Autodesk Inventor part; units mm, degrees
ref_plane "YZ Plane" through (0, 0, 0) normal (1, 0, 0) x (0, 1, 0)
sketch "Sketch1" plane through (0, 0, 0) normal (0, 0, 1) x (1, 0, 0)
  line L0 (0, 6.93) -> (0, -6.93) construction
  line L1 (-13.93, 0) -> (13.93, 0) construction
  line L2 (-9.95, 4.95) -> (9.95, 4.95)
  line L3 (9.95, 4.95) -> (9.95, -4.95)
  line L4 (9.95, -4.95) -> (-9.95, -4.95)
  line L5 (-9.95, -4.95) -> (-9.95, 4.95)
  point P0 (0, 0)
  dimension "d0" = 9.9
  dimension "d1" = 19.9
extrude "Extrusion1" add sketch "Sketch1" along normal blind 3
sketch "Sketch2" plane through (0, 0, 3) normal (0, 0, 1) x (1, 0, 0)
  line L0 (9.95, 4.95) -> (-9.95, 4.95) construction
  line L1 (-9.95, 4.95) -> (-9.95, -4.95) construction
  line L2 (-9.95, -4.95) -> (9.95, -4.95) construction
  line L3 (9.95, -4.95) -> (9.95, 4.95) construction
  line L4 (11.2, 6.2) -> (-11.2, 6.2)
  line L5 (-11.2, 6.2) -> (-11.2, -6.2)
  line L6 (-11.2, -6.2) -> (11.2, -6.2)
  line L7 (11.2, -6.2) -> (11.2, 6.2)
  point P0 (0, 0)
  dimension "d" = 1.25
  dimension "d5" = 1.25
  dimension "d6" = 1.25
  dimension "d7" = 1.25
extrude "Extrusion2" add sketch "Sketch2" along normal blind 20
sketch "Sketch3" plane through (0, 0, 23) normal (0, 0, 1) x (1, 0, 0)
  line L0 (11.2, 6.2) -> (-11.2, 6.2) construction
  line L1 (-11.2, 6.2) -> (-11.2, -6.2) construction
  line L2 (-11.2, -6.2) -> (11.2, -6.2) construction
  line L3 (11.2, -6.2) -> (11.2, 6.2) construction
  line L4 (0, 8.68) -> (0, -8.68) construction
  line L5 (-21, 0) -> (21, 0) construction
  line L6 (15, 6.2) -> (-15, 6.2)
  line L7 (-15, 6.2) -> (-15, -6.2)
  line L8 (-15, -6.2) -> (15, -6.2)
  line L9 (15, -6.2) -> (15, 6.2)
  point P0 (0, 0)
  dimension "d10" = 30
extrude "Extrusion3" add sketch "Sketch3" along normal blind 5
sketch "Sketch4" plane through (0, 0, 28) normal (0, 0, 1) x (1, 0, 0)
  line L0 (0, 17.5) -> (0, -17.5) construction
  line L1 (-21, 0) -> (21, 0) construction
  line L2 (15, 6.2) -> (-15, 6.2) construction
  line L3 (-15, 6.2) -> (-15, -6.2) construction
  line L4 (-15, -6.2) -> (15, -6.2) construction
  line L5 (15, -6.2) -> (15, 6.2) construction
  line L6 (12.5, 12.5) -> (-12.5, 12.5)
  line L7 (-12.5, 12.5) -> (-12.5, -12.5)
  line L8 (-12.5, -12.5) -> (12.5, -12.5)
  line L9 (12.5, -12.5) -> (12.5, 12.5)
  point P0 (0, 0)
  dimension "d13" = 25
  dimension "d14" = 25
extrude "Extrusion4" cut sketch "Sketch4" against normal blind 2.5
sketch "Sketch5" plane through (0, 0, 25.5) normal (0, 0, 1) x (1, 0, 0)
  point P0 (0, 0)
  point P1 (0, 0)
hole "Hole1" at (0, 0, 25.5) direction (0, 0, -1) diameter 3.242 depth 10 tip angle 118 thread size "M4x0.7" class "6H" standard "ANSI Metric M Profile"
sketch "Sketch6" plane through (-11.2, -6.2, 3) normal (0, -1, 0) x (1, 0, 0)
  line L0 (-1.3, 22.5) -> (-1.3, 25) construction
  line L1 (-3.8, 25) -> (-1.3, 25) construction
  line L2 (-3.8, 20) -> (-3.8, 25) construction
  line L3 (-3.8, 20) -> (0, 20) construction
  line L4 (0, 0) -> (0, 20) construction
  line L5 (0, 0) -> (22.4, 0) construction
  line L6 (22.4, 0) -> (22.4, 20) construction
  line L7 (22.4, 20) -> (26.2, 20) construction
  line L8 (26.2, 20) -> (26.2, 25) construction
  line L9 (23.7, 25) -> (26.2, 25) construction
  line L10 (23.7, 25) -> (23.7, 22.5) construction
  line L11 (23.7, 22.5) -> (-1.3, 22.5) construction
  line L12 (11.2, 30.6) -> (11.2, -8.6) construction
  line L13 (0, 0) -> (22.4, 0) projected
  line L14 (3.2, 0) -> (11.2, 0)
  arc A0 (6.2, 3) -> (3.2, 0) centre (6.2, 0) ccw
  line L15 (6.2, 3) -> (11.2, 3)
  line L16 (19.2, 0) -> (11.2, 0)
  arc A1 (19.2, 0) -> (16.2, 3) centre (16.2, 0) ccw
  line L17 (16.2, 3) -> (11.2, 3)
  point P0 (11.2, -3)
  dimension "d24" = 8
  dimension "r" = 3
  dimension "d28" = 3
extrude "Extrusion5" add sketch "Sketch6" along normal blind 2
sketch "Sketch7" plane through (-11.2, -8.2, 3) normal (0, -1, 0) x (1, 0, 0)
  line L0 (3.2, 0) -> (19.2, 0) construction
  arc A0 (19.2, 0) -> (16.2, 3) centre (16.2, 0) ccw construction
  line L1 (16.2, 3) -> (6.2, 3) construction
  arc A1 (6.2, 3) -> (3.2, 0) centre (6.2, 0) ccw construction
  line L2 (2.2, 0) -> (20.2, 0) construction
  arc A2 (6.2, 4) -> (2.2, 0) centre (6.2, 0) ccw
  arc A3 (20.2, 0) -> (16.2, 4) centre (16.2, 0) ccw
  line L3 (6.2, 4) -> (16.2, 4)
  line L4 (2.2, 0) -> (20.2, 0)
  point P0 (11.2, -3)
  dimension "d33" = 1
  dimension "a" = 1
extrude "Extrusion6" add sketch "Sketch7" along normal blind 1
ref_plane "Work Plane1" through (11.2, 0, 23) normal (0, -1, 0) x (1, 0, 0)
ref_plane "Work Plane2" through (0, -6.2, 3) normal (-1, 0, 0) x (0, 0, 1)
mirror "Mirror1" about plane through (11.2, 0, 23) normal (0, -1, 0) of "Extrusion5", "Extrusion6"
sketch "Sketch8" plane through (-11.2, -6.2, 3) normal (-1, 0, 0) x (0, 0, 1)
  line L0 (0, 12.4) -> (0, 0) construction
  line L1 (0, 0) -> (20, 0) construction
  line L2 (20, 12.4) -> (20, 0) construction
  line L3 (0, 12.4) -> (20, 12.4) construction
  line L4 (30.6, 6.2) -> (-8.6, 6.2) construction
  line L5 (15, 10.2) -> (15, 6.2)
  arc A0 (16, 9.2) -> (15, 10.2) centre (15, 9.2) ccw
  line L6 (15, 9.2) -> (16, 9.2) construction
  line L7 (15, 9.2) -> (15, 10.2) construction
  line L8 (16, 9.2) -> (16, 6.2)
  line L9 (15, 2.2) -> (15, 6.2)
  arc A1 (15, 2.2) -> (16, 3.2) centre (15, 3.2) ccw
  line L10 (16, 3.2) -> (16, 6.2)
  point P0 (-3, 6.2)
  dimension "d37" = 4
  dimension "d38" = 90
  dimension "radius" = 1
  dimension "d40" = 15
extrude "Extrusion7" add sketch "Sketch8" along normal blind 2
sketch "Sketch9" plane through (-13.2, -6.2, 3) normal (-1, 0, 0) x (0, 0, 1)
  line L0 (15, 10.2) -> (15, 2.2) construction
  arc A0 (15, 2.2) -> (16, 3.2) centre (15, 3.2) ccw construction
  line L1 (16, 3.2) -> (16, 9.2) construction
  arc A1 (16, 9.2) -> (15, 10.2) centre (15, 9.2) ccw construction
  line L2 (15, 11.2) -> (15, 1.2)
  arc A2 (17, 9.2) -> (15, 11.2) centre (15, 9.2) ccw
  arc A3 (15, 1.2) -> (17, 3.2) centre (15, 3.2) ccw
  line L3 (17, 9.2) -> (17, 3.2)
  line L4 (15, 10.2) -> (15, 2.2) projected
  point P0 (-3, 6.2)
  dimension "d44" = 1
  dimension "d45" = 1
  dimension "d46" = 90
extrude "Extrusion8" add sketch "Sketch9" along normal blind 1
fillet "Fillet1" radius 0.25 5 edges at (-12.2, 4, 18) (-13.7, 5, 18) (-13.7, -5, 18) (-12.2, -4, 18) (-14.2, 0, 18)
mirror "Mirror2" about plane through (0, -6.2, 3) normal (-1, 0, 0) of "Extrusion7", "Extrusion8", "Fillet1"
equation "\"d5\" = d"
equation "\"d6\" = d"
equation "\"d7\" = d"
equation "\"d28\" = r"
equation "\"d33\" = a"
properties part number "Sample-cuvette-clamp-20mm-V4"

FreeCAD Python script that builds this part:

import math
import FreeCAD as App
import Part
import Sketcher

V = App.Vector


def edges_at(feature, points):
    """Names of the edges that pass closest to the given points."""
    edges = feature.Shape.Edges
    near = lambda p: min(range(len(edges)), key=lambda i: edges[i].distToShape(Part.Vertex(*p))[0])
    return sorted({f"Edge{near(p) + 1}" for p in points})

doc = App.newDocument("Part")
body = doc.addObject("PartDesign::Body", "Body")

# Sketch on XY plane
sketch1 = body.newObject("Sketcher::SketchObject", "Sketch")
sketch1.AttachmentSupport = (doc.getObject("XY_Plane"), [""])
sketch1.MapMode = "FlatFace"
sketch1.addGeometry(Part.LineSegment(V(10, 5, 0), V(-10, 5, 0)), False)
sketch1.addGeometry(Part.LineSegment(V(-10, 5, 0), V(-10, -5, 0)), False)
sketch1.addGeometry(Part.LineSegment(V(-10, -5, 0), V(10, -5, 0)), False)
sketch1.addGeometry(Part.LineSegment(V(10, -5, 0), V(10, 5, 0)), False)
sketch1.addConstraint(Sketcher.Constraint("Coincident", 0, 2, 1, 1))
sketch1.addConstraint(Sketcher.Constraint("Coincident", 1, 2, 2, 1))
sketch1.addConstraint(Sketcher.Constraint("Coincident", 2, 2, 3, 1))
sketch1.addConstraint(Sketcher.Constraint("Coincident", 3, 2, 0, 1))
sketch1.addConstraint(Sketcher.Constraint("Horizontal", 0))
sketch1.addConstraint(Sketcher.Constraint("Vertical", 1))
sketch1.addConstraint(Sketcher.Constraint("Horizontal", 2))
sketch1.addConstraint(Sketcher.Constraint("Vertical", 3))
sketch1.addConstraint(Sketcher.Constraint("Symmetric", 0, 2, 2, 2, -1, 1))
sketch1.addConstraint(Sketcher.Constraint("DistanceX", 0, 2, 0, 1, 19.9))
sketch1.addConstraint(Sketcher.Constraint("DistanceY", 1, 2, 1, 1, 9.9))
pad1 = body.newObject("PartDesign::Pad", "Pad")
pad1.Profile = sketch1
pad1.Length = 3

# Sketch on XY plane
sketch2 = body.newObject("Sketcher::SketchObject", "Sketch001")
sketch2.AttachmentSupport = (doc.getObject("XY_Plane"), [""])
sketch2.MapMode = "FlatFace"
sketch2.AttachmentOffset = App.Placement(V(0, 0, 3), App.Rotation())
sketch2.addGeometry(Part.LineSegment(V(11, -6, 0), V(11, 6, 0)), False)
sketch2.addGeometry(Part.LineSegment(V(11, 6, 0), V(-11, 6, 0)), False)
sketch2.addGeometry(Part.LineSegment(V(-11, 6, 0), V(-11, -6, 0)), False)
sketch2.addGeometry(Part.LineSegment(V(-11, -6, 0), V(11, -6, 0)), False)
sketch2.addConstraint(Sketcher.Constraint("Coincident", 0, 2, 1, 1))
sketch2.addConstraint(Sketcher.Constraint("Coincident", 1, 2, 2, 1))
sketch2.addConstraint(Sketcher.Constraint("Coincident", 2, 2, 3, 1))
sketch2.addConstraint(Sketcher.Constraint("Coincident", 3, 2, 0, 1))
sketch2.addConstraint(Sketcher.Constraint("Vertical", 0))
sketch2.addConstraint(Sketcher.Constraint("Horizontal", 1))
sketch2.addConstraint(Sketcher.Constraint("Vertical", 2))
sketch2.addConstraint(Sketcher.Constraint("Horizontal", 3))
sketch2.addConstraint(Sketcher.Constraint("Symmetric", 0, 2, 2, 2, -1, 1))
sketch2.addConstraint(Sketcher.Constraint("DistanceX", 1, 2, 1, 1, 22.4))
sketch2.addConstraint(Sketcher.Constraint("DistanceY", 0, 1, 0, 2, 12.4))
pad2 = body.newObject("PartDesign::Pad", "Pad001")
pad2.Profile = sketch2
pad2.Length = 20

# Sketch on XY plane
sketch3 = body.newObject("Sketcher::SketchObject", "Sketch002")
sketch3.AttachmentSupport = (doc.getObject("XY_Plane"), [""])
sketch3.MapMode = "FlatFace"
sketch3.AttachmentOffset = App.Placement(V(0, 0, 23), App.Rotation())
sketch3.addGeometry(Part.LineSegment(V(15, -6, 0), V(15, 6, 0)), False)
sketch3.addGeometry(Part.LineSegment(V(15, 6, 0), V(-15, 6, 0)), False)
sketch3.addGeometry(Part.LineSegment(V(-15, 6, 0), V(-15, -6, 0)), False)
sketch3.addGeometry(Part.LineSegment(V(-15, -6, 0), V(15, -6, 0)), False)
sketch3.addConstraint(Sketcher.Constraint("Coincident", 0, 2, 1, 1))
sketch3.addConstraint(Sketcher.Constraint("Coincident", 1, 2, 2, 1))
sketch3.addConstraint(Sketcher.Constraint("Coincident", 2, 2, 3, 1))
sketch3.addConstraint(Sketcher.Constraint("Coincident", 3, 2, 0, 1))
sketch3.addConstraint(Sketcher.Constraint("Vertical", 0))
sketch3.addConstraint(Sketcher.Constraint("Horizontal", 1))
sketch3.addConstraint(Sketcher.Constraint("Vertical", 2))
sketch3.addConstraint(Sketcher.Constraint("Horizontal", 3))
sketch3.addConstraint(Sketcher.Constraint("Symmetric", 0, 2, 2, 2, -1, 1))
sketch3.addConstraint(Sketcher.Constraint("DistanceX", 1, 2, 1, 1, 30.0))
sketch3.addConstraint(Sketcher.Constraint("DistanceY", 0, 1, 0, 2, 12.4))
pad3 = body.newObject("PartDesign::Pad", "Pad002")
pad3.Profile = sketch3
pad3.Length = 5

# Sketch on XY plane
sketch4 = body.newObject("Sketcher::SketchObject", "Sketch003")
sketch4.AttachmentSupport = (doc.getObject("XY_Plane"), [""])
sketch4.MapMode = "FlatFace"
sketch4.AttachmentOffset = App.Placement(V(0, 0, 28), App.Rotation())
sketch4.addGeometry(Part.LineSegment(V(12, -12, 0), V(12, 12, 0)), False)
sketch4.addGeometry(Part.LineSegment(V(12, 12, 0), V(-12, 12, 0)), False)
sketch4.addGeometry(Part.LineSegment(V(-12, 12, 0), V(-12, -12, 0)), False)
sketch4.addGeometry(Part.LineSegment(V(-12, -12, 0), V(12, -12, 0)), False)
sketch4.addConstraint(Sketcher.Constraint("Coincident", 0, 2, 1, 1))
sketch4.addConstraint(Sketcher.Constraint("Coincident", 1, 2, 2, 1))
sketch4.addConstraint(Sketcher.Constraint("Coincident", 2, 2, 3, 1))
sketch4.addConstraint(Sketcher.Constraint("Coincident", 3, 2, 0, 1))
sketch4.addConstraint(Sketcher.Constraint("Vertical", 0))
sketch4.addConstraint(Sketcher.Constraint("Horizontal", 1))
sketch4.addConstraint(Sketcher.Constraint("Vertical", 2))
sketch4.addConstraint(Sketcher.Constraint("Horizontal", 3))
sketch4.addConstraint(Sketcher.Constraint("Symmetric", 0, 2, 2, 2, -1, 1))
sketch4.addConstraint(Sketcher.Constraint("Equal", 3, 0))
sketch4.addConstraint(Sketcher.Constraint("DistanceX", 1, 2, 1, 1, 25.0))
pocket1 = body.newObject("PartDesign::Pocket", "Pocket")
pocket1.Profile = sketch4
pocket1.Length = 2.5

# Sketch on XY plane
sketch5 = body.newObject("Sketcher::SketchObject", "Sketch004")
sketch5.AttachmentSupport = (doc.getObject("XY_Plane"), [""])
sketch5.MapMode = "FlatFace"
sketch5.AttachmentOffset = App.Placement(V(0, 0, 25.5), App.Rotation())
sketch5.addGeometry(Part.Circle(V(0, 0, 0), V(0, 0, 1), 1.6), False)
sketch5.addConstraint(Sketcher.Constraint("Coincident", 0, 3, -1, 1))
sketch5.addConstraint(Sketcher.Constraint("Diameter", 0, 3.242))
doc.recompute()
hole = body.newObject("PartDesign::Hole", "Hole")
hole.Profile = sketch5
hole.ThreadType = "None"
hole.Diameter = 3.242
hole.DepthType = "Dimension"
hole.Depth = 10
hole.DrillPoint = "Angled"
hole.DrillPointAngle = 118

# Sketch on XZ plane
sketch6 = body.newObject("Sketcher::SketchObject", "Sketch005")
sketch6.AttachmentSupport = (doc.getObject("XZ_Plane"), [""])
sketch6.MapMode = "FlatFace"
sketch6.AttachmentOffset = App.Placement(V(0, 0, 6.2), App.Rotation())
sketch6.addGeometry(Part.ArcOfCircle(Part.Circle(V(-5, 3, 0), V(0, 0, 1), 3), math.radians(90), math.radians(180)), False)
sketch6.addGeometry(Part.LineSegment(V(-8, 3, 0), V(8, 3, 0)), False)
sketch6.addGeometry(Part.ArcOfCircle(Part.Circle(V(5, 3, 0), V(0, 0, 1), 3), math.radians(0), math.radians(90)), False)
sketch6.addGeometry(Part.LineSegment(V(5, 6, 0), V(-5, 6, 0)), False)
sketch6.addConstraint(Sketcher.Constraint("Coincident", 0, 2, 1, 1))
sketch6.addConstraint(Sketcher.Constraint("Coincident", 1, 2, 2, 1))
sketch6.addConstraint(Sketcher.Constraint("Tangent", 2, 2, 3, 1))
sketch6.addConstraint(Sketcher.Constraint("Tangent", 3, 2, 0, 1))
sketch6.addConstraint(Sketcher.Constraint("Horizontal", 1))
sketch6.addConstraint(Sketcher.Constraint("Horizontal", 3))
sketch6.addConstraint(Sketcher.Constraint("Equal", 0, 2))
sketch6.addConstraint(Sketcher.Constraint("Horizontal", 2, 3, 0, 2))
sketch6.addConstraint(Sketcher.Constraint("Radius", 0, 3.0))
sketch6.addConstraint(Sketcher.Constraint("DistanceY", -1, 1, 0, 3, 3.0))
sketch6.addConstraint(Sketcher.Constraint("DistanceX", 0, 2, -1, 1, 8.0))
sketch6.addConstraint(Sketcher.Constraint("DistanceX", -1, 1, 1, 2, 8.0))
pad4 = body.newObject("PartDesign::Pad", "Pad003")
pad4.Profile = sketch6
pad4.Length = 2

# Sketch on XZ plane
sketch7 = body.newObject("Sketcher::SketchObject", "Sketch006")
sketch7.AttachmentSupport = (doc.getObject("XZ_Plane"), [""])
sketch7.MapMode = "FlatFace"
sketch7.AttachmentOffset = App.Placement(V(0, 0, 8.2), App.Rotation())
sketch7.addGeometry(Part.LineSegment(V(5, 7, 0), V(-5, 7, 0)), False)
sketch7.addGeometry(Part.ArcOfCircle(Part.Circle(V(-5, 3, 0), V(0, 0, 1), 4), math.radians(90), math.radians(180)), False)
sketch7.addGeometry(Part.LineSegment(V(-9, 3, 0), V(9, 3, 0)), False)
sketch7.addGeometry(Part.ArcOfCircle(Part.Circle(V(5, 3, 0), V(0, 0, 1), 4), math.radians(0), math.radians(90)), False)
sketch7.addConstraint(Sketcher.Constraint("Tangent", 0, 2, 1, 1))
sketch7.addConstraint(Sketcher.Constraint("Coincident", 1, 2, 2, 1))
sketch7.addConstraint(Sketcher.Constraint("Coincident", 2, 2, 3, 1))
sketch7.addConstraint(Sketcher.Constraint("Tangent", 3, 2, 0, 1))
sketch7.addConstraint(Sketcher.Constraint("Horizontal", 0))
sketch7.addConstraint(Sketcher.Constraint("Horizontal", 2))
sketch7.addConstraint(Sketcher.Constraint("Equal", 1, 3))
sketch7.addConstraint(Sketcher.Constraint("Horizontal", 3, 3, 1, 2))
sketch7.addConstraint(Sketcher.Constraint("Radius", 1, 4.0))
sketch7.addConstraint(Sketcher.Constraint("DistanceX", 0, 2, 0, 1, 10.0))
sketch7.addConstraint(Sketcher.Constraint("DistanceX", 1, 3, -1, 1, 5.0))
sketch7.addConstraint(Sketcher.Constraint("DistanceY", -1, 1, 1, 3, 3.0))
pad5 = body.newObject("PartDesign::Pad", "Pad004")
pad5.Profile = sketch7
pad5.Length = 1
doc.recompute()

mirrored = body.newObject("PartDesign::Mirrored", "Mirrored")
mirrored.Originals = [pad4, pad5]
mirrored.MirrorPlane = (doc.getObject("XZ_Plane"), [""])
body.Tip = mirrored

# Sketch on YZ plane
sketch8 = body.newObject("Sketcher::SketchObject", "Sketch007")
sketch8.AttachmentSupport = (doc.getObject("YZ_Plane"), [""])
sketch8.MapMode = "FlatFace"
sketch8.AttachmentOffset = App.Placement(V(0, 0, -11.2), App.Rotation())
sketch8.addGeometry(Part.ArcOfCircle(Part.Circle(V(3, 18, 0), V(0, 0, 1), 1), math.radians(0), math.radians(90)), False)
sketch8.addGeometry(Part.LineSegment(V(4, 18, 0), V(-4, 18, 0)), False)
sketch8.addGeometry(Part.ArcOfCircle(Part.Circle(V(-3, 18, 0), V(0, 0, 1), 1), math.radians(90), math.radians(180)), False)
sketch8.addGeometry(Part.LineSegment(V(-3, 19, 0), V(3, 19, 0)), False)
sketch8.addConstraint(Sketcher.Constraint("Coincident", 0, 1, 1, 1))
sketch8.addConstraint(Sketcher.Constraint("Coincident", 1, 2, 2, 2))
sketch8.addConstraint(Sketcher.Constraint("Tangent", 2, 1, 3, 1))
sketch8.addConstraint(Sketcher.Constraint("Tangent", 3, 2, 0, 2))
sketch8.addConstraint(Sketcher.Constraint("Horizontal", 1))
sketch8.addConstraint(Sketcher.Constraint("Horizontal", 3))
sketch8.addConstraint(Sketcher.Constraint("Equal", 0, 2))
sketch8.addConstraint(Sketcher.Constraint("Horizontal", 2, 3, 0, 1))
sketch8.addConstraint(Sketcher.Constraint("Radius", 0, 1.0))
sketch8.addConstraint(Sketcher.Constraint("DistanceX", -1, 1, 0, 1, 4.0))
sketch8.addConstraint(Sketcher.Constraint("DistanceX", 1, 2, -1, 1, 4.0))
sketch8.addConstraint(Sketcher.Constraint("DistanceY", -1, 1, 0, 3, 18.0))
pad6 = body.newObject("PartDesign::Pad", "Pad005")
pad6.Profile = sketch8
pad6.Length = 2
pad6.Reversed = True

# Sketch on YZ plane
sketch9 = body.newObject("Sketcher::SketchObject", "Sketch008")
sketch9.AttachmentSupport = (doc.getObject("YZ_Plane"), [""])
sketch9.MapMode = "FlatFace"
sketch9.AttachmentOffset = App.Placement(V(0, 0, -13.2), App.Rotation())
sketch9.addGeometry(Part.ArcOfCircle(Part.Circle(V(3, 18, 0), V(0, 0, 1), 2), math.radians(0), math.radians(90)), False)
sketch9.addGeometry(Part.LineSegment(V(5, 18, 0), V(-5, 18, 0)), False)
sketch9.addGeometry(Part.ArcOfCircle(Part.Circle(V(-3, 18, 0), V(0, 0, 1), 2), math.radians(90), math.radians(180)), False)
sketch9.addGeometry(Part.LineSegment(V(-3, 20, 0), V(3, 20, 0)), False)
sketch9.addConstraint(Sketcher.Constraint("Coincident", 0, 1, 1, 1))
sketch9.addConstraint(Sketcher.Constraint("Coincident", 1, 2, 2, 2))
sketch9.addConstraint(Sketcher.Constraint("Tangent", 2, 1, 3, 1))
sketch9.addConstraint(Sketcher.Constraint("Tangent", 3, 2, 0, 2))
sketch9.addConstraint(Sketcher.Constraint("Horizontal", 1))
sketch9.addConstraint(Sketcher.Constraint("Horizontal", 3))
sketch9.addConstraint(Sketcher.Constraint("Equal", 0, 2))
sketch9.addConstraint(Sketcher.Constraint("Horizontal", 2, 3, 0, 1))
sketch9.addConstraint(Sketcher.Constraint("Radius", 0, 2.0))
sketch9.addConstraint(Sketcher.Constraint("DistanceX", 1, 2, 1, 1, 10.0))
sketch9.addConstraint(Sketcher.Constraint("DistanceX", -1, 1, 0, 3, 3.0))
sketch9.addConstraint(Sketcher.Constraint("DistanceY", -1, 1, 0, 3, 18.0))
pad7 = body.newObject("PartDesign::Pad", "Pad006")
pad7.Profile = sketch9
pad7.Length = 1
pad7.Reversed = True
doc.recompute()

fillet = body.newObject("PartDesign::Fillet", "Fillet")
fillet.Base = (pad7, edges_at(pad7, [
    (-12.2, 4, 18),
    (-13.7, 5, 18),
    (-13.7, -5, 18),
    (-12.2, -4, 18),
    (-14.2, 0, 18),
]))
fillet.Radius = 0.25
doc.recompute()

mirrored2 = body.newObject("PartDesign::Mirrored", "Mirrored001")
mirrored2.Originals = [pad6, pad7, fillet]
mirrored2.MirrorPlane = (doc.getObject("YZ_Plane"), [""])
body.Tip = mirrored2

doc.recompute()
